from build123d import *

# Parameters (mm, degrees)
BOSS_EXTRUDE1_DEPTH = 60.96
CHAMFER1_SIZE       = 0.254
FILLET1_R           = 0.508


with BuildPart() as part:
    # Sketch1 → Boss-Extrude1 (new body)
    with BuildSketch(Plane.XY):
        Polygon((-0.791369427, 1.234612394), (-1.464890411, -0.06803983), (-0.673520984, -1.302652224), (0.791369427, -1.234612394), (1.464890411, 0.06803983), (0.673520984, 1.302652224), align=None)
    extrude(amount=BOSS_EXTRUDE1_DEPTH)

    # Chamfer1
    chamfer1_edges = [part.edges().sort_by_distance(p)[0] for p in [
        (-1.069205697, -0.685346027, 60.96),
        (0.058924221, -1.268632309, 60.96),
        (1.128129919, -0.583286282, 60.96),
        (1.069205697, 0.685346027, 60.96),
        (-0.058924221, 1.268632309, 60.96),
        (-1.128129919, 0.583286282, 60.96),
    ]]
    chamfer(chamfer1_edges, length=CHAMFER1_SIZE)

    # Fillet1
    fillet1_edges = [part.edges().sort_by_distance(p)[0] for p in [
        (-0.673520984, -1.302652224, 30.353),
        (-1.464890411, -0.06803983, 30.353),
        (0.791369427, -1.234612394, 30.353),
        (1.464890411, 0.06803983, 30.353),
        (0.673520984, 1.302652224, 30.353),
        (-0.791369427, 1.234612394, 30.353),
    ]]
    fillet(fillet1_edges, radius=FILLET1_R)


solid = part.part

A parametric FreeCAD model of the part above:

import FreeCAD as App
import Part
import Sketcher
from FreeCAD import Vector


def edges_at(feature, points):
    """Names of the edges that pass closest to the given points."""
    edges = feature.Shape.Edges
    near = lambda p: min(range(len(edges)), key=lambda i: edges[i].distToShape(Part.Vertex(*p))[0])
    return sorted({f"Edge{near(p) + 1}" for p in points})


def add_polygon(sketch, points):
    """Adds a closed chain of lines whose ends are joined by coincident constraints."""
    first, n = sketch.GeometryCount, len(points)
    for a, b in zip(points, points[1:] + points[:1]):
        sketch.addGeometry(Part.LineSegment(App.Vector(*a, 0), App.Vector(*b, 0)), False)
    for i in range(n):
        sketch.addConstraint(Sketcher.Constraint("Coincident", first + i, 2, first + (i + 1) % n, 1))

doc = App.newDocument("Part")
params = doc.addObject("Spreadsheet::Sheet", "Params")
for row, (alias, value) in enumerate([
    ("pad1_length", "2.4 in"),
    ("chamfer_size", "0.01 in"),
    ("fillet_radius", "0.02 in"),
], start=1):
    params.set(f"A{row}", alias)
    params.set(f"B{row}", "=" + value)
    params.setAlias(f"B{row}", alias)

body = doc.addObject("PartDesign::Body", "Body")

# Sketch on XY plane
sketch1 = body.newObject("Sketcher::SketchObject", "Sketch")
sketch1.AttachmentSupport = (doc.getObject("XY_Plane"), [""])
sketch1.MapMode = "FlatFace"
add_polygon(sketch1, [(-0.8, 1.2), (-1.5, -0.1), (-0.7, -1.3), (0.8, -1.2), (1.5, 0.1), (0.7, 1.3)])  # lines 0-5
sketch1.addConstraint(Sketcher.Constraint("Symmetric", 0, 2, 3, 2, -1, 1))
sketch1.addConstraint(Sketcher.Constraint("Symmetric", 1, 2, 4, 2, -1, 1))
sketch1.addConstraint(Sketcher.Constraint("Symmetric", 2, 2, 5, 2, -1, 1))
sketch1.addConstraint(Sketcher.Constraint("Equal", 0, 1))
sketch1.addConstraint(Sketcher.Constraint("Equal", 1, 2))
sketch1.addConstraint(Sketcher.Constraint("Distance", 0, 1.46647))
sketch1.addConstraint(Sketcher.Constraint("DistanceX", 0, 2, -1, 1, 1.46489))
sketch1.addConstraint(Sketcher.Constraint("DistanceY", 0, 2, -1, 1, 0.06804))
sketch1.addConstraint(Sketcher.Constraint("DistanceX", 1, 2, -1, 1, 0.673521))
pad1 = body.newObject("PartDesign::Pad", "Pad")
pad1.Profile = sketch1
pad1.setExpression("Length", "Params.pad1_length")
doc.recompute()

chamfer = body.newObject("PartDesign::Chamfer", "Chamfer")
chamfer.Base = (pad1, edges_at(pad1, [
    (-1.069, -0.685, 60.96),
    (0.059, -1.269, 60.96),
    (1.128, -0.583, 60.96),
    (1.069, 0.685, 60.96),
    (-0.059, 1.269, 60.96),
    (-1.128, 0.583, 60.96),
]))
chamfer.setExpression("Size", "Params.chamfer_size")
doc.recompute()

fillet = body.newObject("PartDesign::Fillet", "Fillet")
fillet.Base = (chamfer, edges_at(chamfer, [
    (-0.674, -1.303, 30.353),
    (-1.465, -0.068, 30.353),
    (0.791, -1.235, 30.353),
    (1.465, 0.068, 30.353),
    (0.674, 1.303, 30.353),
    (-0.791, 1.235, 30.353),
]))
fillet.setExpression("Radius", "Params.fillet_radius")

doc.recompute()
